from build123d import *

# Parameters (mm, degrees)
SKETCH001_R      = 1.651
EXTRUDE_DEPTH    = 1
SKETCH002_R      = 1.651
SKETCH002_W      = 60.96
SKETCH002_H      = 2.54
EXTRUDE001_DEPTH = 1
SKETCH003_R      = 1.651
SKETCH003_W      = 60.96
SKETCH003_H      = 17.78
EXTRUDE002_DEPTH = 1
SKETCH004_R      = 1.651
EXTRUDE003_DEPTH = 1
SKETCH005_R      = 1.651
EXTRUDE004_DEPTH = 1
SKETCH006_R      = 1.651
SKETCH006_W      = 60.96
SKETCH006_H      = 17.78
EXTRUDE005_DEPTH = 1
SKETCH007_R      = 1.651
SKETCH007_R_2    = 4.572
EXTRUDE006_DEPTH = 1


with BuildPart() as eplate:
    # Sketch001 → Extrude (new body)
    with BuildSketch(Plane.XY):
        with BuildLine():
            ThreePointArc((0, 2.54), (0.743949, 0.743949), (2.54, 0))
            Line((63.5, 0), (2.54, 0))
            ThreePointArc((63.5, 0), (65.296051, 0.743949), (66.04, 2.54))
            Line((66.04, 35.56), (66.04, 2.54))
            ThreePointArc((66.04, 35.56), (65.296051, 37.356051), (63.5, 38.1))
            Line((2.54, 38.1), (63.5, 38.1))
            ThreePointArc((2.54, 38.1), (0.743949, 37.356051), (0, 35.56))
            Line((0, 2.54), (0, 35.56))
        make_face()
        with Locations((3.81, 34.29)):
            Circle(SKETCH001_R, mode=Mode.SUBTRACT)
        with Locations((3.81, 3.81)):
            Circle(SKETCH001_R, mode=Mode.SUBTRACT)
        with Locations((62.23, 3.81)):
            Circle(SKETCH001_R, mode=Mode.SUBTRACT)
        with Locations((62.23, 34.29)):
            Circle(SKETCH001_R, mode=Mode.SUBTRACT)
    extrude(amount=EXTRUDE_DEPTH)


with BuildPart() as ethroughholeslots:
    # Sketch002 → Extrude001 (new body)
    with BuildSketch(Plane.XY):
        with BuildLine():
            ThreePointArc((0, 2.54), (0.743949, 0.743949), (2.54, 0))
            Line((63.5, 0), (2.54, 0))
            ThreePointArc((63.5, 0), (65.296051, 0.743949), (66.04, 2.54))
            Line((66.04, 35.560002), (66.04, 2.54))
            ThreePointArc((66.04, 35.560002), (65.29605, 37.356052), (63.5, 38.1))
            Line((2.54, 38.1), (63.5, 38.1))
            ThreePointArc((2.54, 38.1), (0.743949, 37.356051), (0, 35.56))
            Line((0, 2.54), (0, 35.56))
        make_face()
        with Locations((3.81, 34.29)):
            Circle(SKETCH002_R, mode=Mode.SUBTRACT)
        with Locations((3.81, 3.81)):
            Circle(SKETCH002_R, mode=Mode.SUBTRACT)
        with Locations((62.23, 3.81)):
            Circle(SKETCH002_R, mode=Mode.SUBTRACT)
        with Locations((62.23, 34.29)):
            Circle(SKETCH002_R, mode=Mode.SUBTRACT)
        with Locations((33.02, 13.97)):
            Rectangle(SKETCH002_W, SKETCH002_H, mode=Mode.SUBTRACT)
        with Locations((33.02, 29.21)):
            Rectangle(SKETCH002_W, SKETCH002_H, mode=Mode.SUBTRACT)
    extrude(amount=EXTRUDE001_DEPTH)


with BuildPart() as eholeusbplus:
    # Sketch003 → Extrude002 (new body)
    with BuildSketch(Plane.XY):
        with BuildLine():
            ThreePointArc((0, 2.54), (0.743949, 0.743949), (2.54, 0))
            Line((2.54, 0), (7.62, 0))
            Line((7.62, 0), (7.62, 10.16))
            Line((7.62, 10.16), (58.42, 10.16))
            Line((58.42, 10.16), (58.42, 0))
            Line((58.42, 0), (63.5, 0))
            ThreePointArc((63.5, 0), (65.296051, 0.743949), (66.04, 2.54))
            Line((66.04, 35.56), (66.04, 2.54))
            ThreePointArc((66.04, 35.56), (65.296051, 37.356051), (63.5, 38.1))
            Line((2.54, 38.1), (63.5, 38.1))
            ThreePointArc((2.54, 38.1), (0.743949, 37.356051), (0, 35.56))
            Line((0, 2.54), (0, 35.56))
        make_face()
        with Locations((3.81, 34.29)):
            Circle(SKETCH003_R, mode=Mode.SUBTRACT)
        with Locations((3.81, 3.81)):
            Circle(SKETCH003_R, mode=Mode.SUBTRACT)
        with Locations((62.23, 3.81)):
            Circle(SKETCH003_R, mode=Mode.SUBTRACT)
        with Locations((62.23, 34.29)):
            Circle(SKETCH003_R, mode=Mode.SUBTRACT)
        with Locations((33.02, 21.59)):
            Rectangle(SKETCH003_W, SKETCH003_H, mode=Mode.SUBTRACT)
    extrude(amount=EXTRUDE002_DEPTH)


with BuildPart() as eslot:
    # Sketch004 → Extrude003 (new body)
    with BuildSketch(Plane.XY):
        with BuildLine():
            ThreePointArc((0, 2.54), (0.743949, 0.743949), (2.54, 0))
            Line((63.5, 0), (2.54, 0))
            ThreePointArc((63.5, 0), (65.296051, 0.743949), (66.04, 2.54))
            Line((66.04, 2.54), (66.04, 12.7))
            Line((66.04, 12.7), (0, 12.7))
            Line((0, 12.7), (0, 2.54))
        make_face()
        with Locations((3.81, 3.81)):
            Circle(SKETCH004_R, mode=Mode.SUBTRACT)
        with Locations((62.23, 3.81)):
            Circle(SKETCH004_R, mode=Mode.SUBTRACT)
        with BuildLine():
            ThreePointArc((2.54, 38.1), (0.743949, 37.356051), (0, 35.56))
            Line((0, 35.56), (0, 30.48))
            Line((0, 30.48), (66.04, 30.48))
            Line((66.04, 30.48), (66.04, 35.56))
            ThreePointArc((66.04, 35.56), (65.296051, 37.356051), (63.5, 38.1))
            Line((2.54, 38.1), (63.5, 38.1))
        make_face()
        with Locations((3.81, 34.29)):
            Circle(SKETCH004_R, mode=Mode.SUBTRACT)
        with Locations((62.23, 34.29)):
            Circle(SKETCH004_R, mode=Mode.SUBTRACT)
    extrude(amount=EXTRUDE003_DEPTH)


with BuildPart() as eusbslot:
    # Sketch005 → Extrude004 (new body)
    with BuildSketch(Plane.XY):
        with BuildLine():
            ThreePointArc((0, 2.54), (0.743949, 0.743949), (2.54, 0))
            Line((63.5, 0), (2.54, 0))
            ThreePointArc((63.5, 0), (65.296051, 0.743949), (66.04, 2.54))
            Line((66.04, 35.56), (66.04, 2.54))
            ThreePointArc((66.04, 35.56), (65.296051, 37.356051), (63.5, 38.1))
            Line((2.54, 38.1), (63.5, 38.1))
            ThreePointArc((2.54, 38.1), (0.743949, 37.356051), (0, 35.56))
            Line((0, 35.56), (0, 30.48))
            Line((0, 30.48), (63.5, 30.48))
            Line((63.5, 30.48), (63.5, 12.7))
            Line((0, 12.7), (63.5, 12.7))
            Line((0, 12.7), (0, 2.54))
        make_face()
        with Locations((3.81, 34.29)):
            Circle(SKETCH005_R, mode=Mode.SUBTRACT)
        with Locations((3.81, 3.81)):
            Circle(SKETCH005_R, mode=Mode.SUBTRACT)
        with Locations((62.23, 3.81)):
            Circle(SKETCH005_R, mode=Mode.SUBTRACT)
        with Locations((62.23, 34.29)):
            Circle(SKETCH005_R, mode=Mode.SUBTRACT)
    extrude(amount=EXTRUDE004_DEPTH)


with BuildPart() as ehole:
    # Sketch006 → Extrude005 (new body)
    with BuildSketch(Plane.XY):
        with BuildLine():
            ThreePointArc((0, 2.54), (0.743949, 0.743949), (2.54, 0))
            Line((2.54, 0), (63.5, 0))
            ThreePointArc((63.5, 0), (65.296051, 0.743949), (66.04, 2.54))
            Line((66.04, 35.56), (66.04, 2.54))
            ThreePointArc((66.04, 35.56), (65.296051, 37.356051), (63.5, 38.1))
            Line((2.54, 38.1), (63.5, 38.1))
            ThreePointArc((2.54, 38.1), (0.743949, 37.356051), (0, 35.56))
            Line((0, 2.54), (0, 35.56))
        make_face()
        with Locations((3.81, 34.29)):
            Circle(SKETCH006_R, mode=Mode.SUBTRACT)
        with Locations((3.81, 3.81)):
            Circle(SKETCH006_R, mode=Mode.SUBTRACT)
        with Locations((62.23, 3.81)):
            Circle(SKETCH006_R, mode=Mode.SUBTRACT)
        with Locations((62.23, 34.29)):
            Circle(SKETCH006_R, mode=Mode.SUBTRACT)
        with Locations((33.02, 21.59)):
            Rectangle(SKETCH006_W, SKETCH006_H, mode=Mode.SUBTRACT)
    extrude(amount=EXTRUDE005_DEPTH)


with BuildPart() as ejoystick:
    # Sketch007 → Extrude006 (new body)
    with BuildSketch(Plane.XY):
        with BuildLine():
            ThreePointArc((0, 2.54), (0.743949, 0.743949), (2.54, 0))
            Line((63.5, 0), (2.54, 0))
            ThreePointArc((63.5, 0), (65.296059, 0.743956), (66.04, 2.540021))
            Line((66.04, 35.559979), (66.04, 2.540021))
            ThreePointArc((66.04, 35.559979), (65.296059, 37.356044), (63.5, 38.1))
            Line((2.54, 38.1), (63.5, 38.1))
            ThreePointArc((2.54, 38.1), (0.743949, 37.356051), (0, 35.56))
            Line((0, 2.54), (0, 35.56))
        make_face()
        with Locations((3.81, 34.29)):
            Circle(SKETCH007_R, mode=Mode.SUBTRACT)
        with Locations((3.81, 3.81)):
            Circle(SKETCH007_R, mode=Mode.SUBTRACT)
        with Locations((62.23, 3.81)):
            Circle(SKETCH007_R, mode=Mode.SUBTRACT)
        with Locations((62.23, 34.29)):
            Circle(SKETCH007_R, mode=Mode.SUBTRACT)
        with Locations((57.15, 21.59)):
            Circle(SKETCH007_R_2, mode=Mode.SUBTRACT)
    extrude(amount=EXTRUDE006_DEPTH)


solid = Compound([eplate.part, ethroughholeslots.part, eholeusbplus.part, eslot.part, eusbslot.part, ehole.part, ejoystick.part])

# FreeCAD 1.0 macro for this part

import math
import FreeCAD as App
import Part
import Sketcher
from FreeCAD import Vector
Q = App.Units.Quantity

doc = App.newDocument("Part")
body = doc.addObject("PartDesign::Body", "Body")

sketch1 = doc.addObject("Sketcher::SketchObject", "Sketch")
body.addObject(sketch1)
sketch1.AttachmentSupport = (doc.XY_Plane, [""])
sketch1.MapMode = "FlatFace"
sketch1.addGeometry([
    Part.ArcOfCircle(Part.Circle(Vector(2.540001, 2.540001, 0), Vector(0, 0, 1), 2.540001), math.radians(-179.999983), math.radians(-90.000017)),
    Part.LineSegment(Vector(2.54, 0, 0), Vector(63.5, 0, 0)),
    Part.ArcOfCircle(Part.Circle(Vector(63.499999, 2.540001, 0), Vector(0, 0, 1), 2.540001), math.radians(-89.999983), math.radians(-0.000017)),
    Part.LineSegment(Vector(66.04, 2.54, 0), Vector(66.04, 35.56, 0)),
    Part.ArcOfCircle(Part.Circle(Vector(63.499999, 35.559999, 0), Vector(0, 0, 1), 2.540001), math.radians(0.000017), math.radians(89.999983)),
    Part.LineSegment(Vector(63.5, 38.1, 0), Vector(2.54, 38.1, 0)),
    Part.ArcOfCircle(Part.Circle(Vector(2.540001, 35.559999, 0), Vector(0, 0, 1), 2.540001), math.radians(90.000017), math.radians(179.999983)),
    Part.LineSegment(Vector(0, 35.56, 0), Vector(0, 2.54, 0)),
    Part.Circle(Vector(3.81, 3.81, 0), Vector(0, 0, 1), 1.651),
    Part.Circle(Vector(62.23, 3.81, 0), Vector(0, 0, 1), 1.651),
    Part.Circle(Vector(3.81, 34.29, 0), Vector(0, 0, 1), 1.651),
    Part.Circle(Vector(62.23, 34.29, 0), Vector(0, 0, 1), 1.651),
], False)
sketch1.addConstraint([
    Sketcher.Constraint("Tangent", 0, 2, 1, 1),
    Sketcher.Constraint("Tangent", 1, 2, 2, 1),
    Sketcher.Constraint("Tangent", 2, 2, 3, 1),
    Sketcher.Constraint("Tangent", 3, 2, 4, 1),
    Sketcher.Constraint("Tangent", 4, 2, 5, 1),
    Sketcher.Constraint("Tangent", 5, 2, 6, 1),
    Sketcher.Constraint("Tangent", 6, 2, 7, 1),
    Sketcher.Constraint("Tangent", 7, 2, 0, 1),
    Sketcher.Constraint("Horizontal", 1),
    Sketcher.Constraint("Vertical", 3),
    Sketcher.Constraint("Horizontal", 5),
    Sketcher.Constraint("Vertical", 7),
    Sketcher.Constraint("Equal", 0, 2),
    Sketcher.Constraint("Equal", 2, 4),
    Sketcher.Constraint("Equal", 4, 6),
    Sketcher.Constraint("Equal", 8, 9),
    Sketcher.Constraint("Equal", 9, 10),
    Sketcher.Constraint("Equal", 10, 11),
    Sketcher.Constraint("PointOnObject", 0, 2, -1),
    Sketcher.Constraint("PointOnObject", 6, 2, -2),
    Sketcher.Constraint("Horizontal", 8, 3, 9, 3),
    Sketcher.Constraint("Horizontal", 10, 3, 11, 3),
    Sketcher.Constraint("Vertical", 8, 3, 10, 3),
    Sketcher.Constraint("Vertical", 9, 3, 11, 3),
    Sketcher.Constraint("Radius", 0, Q("0.1 in")),
    Sketcher.Constraint("Diameter", 8, Q("0.13 in")),
    Sketcher.Constraint("DistanceX", 1, 1, 1, 2, Q("2.4 in")),
    Sketcher.Constraint("DistanceY", 3, 1, 3, 2, Q("1.3 in")),
    Sketcher.Constraint("DistanceX", 8, 3, 9, 3, Q("2.3 in")),
    Sketcher.Constraint("DistanceY", 8, 3, 10, 3, Q("1.2 in")),
    Sketcher.Constraint("DistanceX", -1, 1, 8, 3, Q("0.15 in")),
    Sketcher.Constraint("DistanceY", -1, 1, 8, 3, Q("0.15 in")),
])
pad1 = doc.addObject("PartDesign::Pad", "Pad")
body.addObject(pad1)
pad1.Profile = sketch1
pad1.Length = 1
body2 = doc.addObject("PartDesign::Body", "Body001")

sketch2 = doc.addObject("Sketcher::SketchObject", "Sketch001")
body2.addObject(sketch2)
sketch2.AttachmentSupport = (doc.getObject("XY_Plane001"), [""])
sketch2.MapMode = "FlatFace"
sketch2.addGeometry([
    Part.ArcOfCircle(Part.Circle(Vector(2.540001, 2.540001, 0), Vector(0, 0, 1), 2.540001), math.radians(-179.999983), math.radians(-90.000017)),
    Part.LineSegment(Vector(2.54, 0, 0), Vector(63.5, 0, 0)),
    Part.ArcOfCircle(Part.Circle(Vector(63.499999, 2.540001, 0), Vector(0, 0, 1), 2.540001), math.radians(-89.999983), math.radians(-0.000017)),
    Part.LineSegment(Vector(66.04, 2.54, 0), Vector(66.04, 35.560002, 0)),
    Part.ArcOfCircle(Part.Circle(Vector(63.499999, 35.559999, 0), Vector(0, 0, 1), 2.540001), math.radians(0.000062), math.radians(89.999983)),
    Part.LineSegment(Vector(63.5, 38.1, 0), Vector(2.54, 38.1, 0)),
    Part.ArcOfCircle(Part.Circle(Vector(2.540001, 35.559999, 0), Vector(0, 0, 1), 2.540001), math.radians(90.000017), math.radians(179.999983)),
    Part.LineSegment(Vector(0, 35.56, 0), Vector(0, 2.54, 0)),
    Part.Circle(Vector(3.81, 3.81, 0), Vector(0, 0, 1), 1.651),
    Part.Circle(Vector(62.23, 3.81, 0), Vector(0, 0, 1), 1.651),
    Part.LineSegment(Vector(63.5, 12.7, 0), Vector(2.54, 12.7, 0)),
    Part.LineSegment(Vector(2.54, 12.7, 0), Vector(2.54, 15.24, 0)),
    Part.LineSegment(Vector(2.54, 15.24, 0), Vector(63.5, 15.24, 0)),
    Part.LineSegment(Vector(63.5, 15.24, 0), Vector(63.5, 12.7, 0)),
    Part.Circle(Vector(3.81, 34.29, 0), Vector(0, 0, 1), 1.651),
    Part.LineSegment(Vector(63.5, 27.94, 0), Vector(2.54, 27.94, 0)),
    Part.LineSegment(Vector(2.54, 27.94, 0), Vector(2.54, 30.48, 0)),
    Part.LineSegment(Vector(2.54, 30.48, 0), Vector(63.5, 30.48, 0)),
    Part.LineSegment(Vector(63.5, 30.48, 0), Vector(63.5, 27.94, 0)),
    Part.Circle(Vector(62.23, 34.29, 0), Vector(0, 0, 1), 1.651),
], False)
sketch2.addConstraint([
    Sketcher.Constraint("Tangent", 0, 2, 1, 1),
    Sketcher.Constraint("Tangent", 1, 2, 2, 1),
    Sketcher.Constraint("Tangent", 2, 2, 3, 1),
    Sketcher.Constraint("Tangent", 3, 2, 4, 1),
    Sketcher.Constraint("Tangent", 4, 2, 5, 1),
    Sketcher.Constraint("Tangent", 5, 2, 6, 1),
    Sketcher.Constraint("Tangent", 6, 2, 7, 1),
    Sketcher.Constraint("Tangent", 7, 2, 0, 1),
    Sketcher.Constraint("Coincident", 10, 2, 11, 1),
    Sketcher.Constraint("Coincident", 11, 2, 12, 1),
    Sketcher.Constraint("Coincident", 12, 2, 13, 1),
    Sketcher.Constraint("Coincident", 13, 2, 10, 1),
    Sketcher.Constraint("Coincident", 15, 2, 16, 1),
    Sketcher.Constraint("Coincident", 16, 2, 17, 1),
    Sketcher.Constraint("Coincident", 17, 2, 18, 1),
    Sketcher.Constraint("Coincident", 18, 2, 15, 1),
    Sketcher.Constraint("Horizontal", 1),
    Sketcher.Constraint("Vertical", 3),
    Sketcher.Constraint("Horizontal", 5),
    Sketcher.Constraint("Vertical", 7),
    Sketcher.Constraint("Horizontal", 10),
    Sketcher.Constraint("Vertical", 11),
    Sketcher.Constraint("Horizontal", 12),
    Sketcher.Constraint("Vertical", 13),
    Sketcher.Constraint("Horizontal", 15),
    Sketcher.Constraint("Vertical", 16),
    Sketcher.Constraint("Horizontal", 17),
    Sketcher.Constraint("Vertical", 18),
    Sketcher.Constraint("Equal", 0, 2),
    Sketcher.Constraint("Equal", 2, 4),
    Sketcher.Constraint("Equal", 4, 6),
    Sketcher.Constraint("Equal", 8, 9),
    Sketcher.Constraint("Equal", 9, 14),
    Sketcher.Constraint("Equal", 14, 19),
    Sketcher.Constraint("PointOnObject", 0, 2, -1),
    Sketcher.Constraint("PointOnObject", 6, 2, -2),
    Sketcher.Constraint("Horizontal", 8, 3, 9, 3),
    Sketcher.Constraint("Horizontal", 14, 3, 19, 3),
    Sketcher.Constraint("Vertical", 8, 3, 14, 3),
    Sketcher.Constraint("Vertical", 9, 3, 19, 3),
    Sketcher.Constraint("Vertical", 5, 2, 10, 2),
    Sketcher.Constraint("Vertical", 4, 2, 12, 2),
    Sketcher.Constraint("Vertical", 11, 2, 15, 2),
    Sketcher.Constraint("Vertical", 13, 2, 17, 2),
    Sketcher.Constraint("Equal", 13, 16),
    Sketcher.Constraint("Radius", 0, Q("0.1 in")),
    Sketcher.Constraint("Diameter", 8, Q("0.13 in")),
    Sketcher.Constraint("DistanceX", 1, 1, 1, 2, Q("2.4 in")),
    Sketcher.Constraint("DistanceY", 3, 1, 3, 2, Q("1.3000001 in")),
    Sketcher.Constraint("DistanceY", 11, 1, 11, 2, Q("0.1 in")),
    Sketcher.Constraint("DistanceY", -1, 1, 10, 2, Q("0.5 in")),
    Sketcher.Constraint("DistanceY", -1, 1, 15, 2, Q("1.1 in")),
    Sketcher.Constraint("DistanceX", 8, 3, 9, 3, Q("2.3 in")),
    Sketcher.Constraint("DistanceY", 8, 3, 14, 3, Q("1.2 in")),
    Sketcher.Constraint("DistanceX", -1, 1, 8, 3, Q("0.15 in")),
    Sketcher.Constraint("DistanceY", -1, 1, 8, 3, Q("0.15 in")),
])
pad2 = doc.addObject("PartDesign::Pad", "Pad001")
body2.addObject(pad2)
pad2.Profile = sketch2
pad2.Length = 1
body3 = doc.addObject("PartDesign::Body", "Body002")

sketch3 = doc.addObject("Sketcher::SketchObject", "Sketch002")
body3.addObject(sketch3)
sketch3.AttachmentSupport = (doc.getObject("XY_Plane002"), [""])
sketch3.MapMode = "FlatFace"
sketch3.addGeometry([
    Part.ArcOfCircle(Part.Circle(Vector(2.540001, 2.540001, 0), Vector(0, 0, 1), 2.540001), math.radians(-179.999983), math.radians(-90.000017)),
    Part.LineSegment(Vector(2.54, 0, 0), Vector(7.62, 0, 0)),
    Part.LineSegment(Vector(7.62, 0, 0), Vector(7.62, 10.16, 0)),
    Part.LineSegment(Vector(7.62, 10.16, 0), Vector(58.42, 10.16, 0)),
    Part.LineSegment(Vector(58.42, 10.16, 0), Vector(58.42, 0, 0)),
    Part.LineSegment(Vector(58.42, 0, 0), Vector(63.5, 0, 0)),
    Part.ArcOfCircle(Part.Circle(Vector(63.499999, 2.540001, 0), Vector(0, 0, 1), 2.540001), math.radians(-89.999983), math.radians(-0.000017)),
    Part.LineSegment(Vector(66.04, 2.54, 0), Vector(66.04, 35.56, 0)),
    Part.ArcOfCircle(Part.Circle(Vector(63.499999, 35.559999, 0), Vector(0, 0, 1), 2.540001), math.radians(0.000017), math.radians(89.999983)),
    Part.LineSegment(Vector(63.5, 38.1, 0), Vector(2.54, 38.1, 0)),
    Part.ArcOfCircle(Part.Circle(Vector(2.540001, 35.559999, 0), Vector(0, 0, 1), 2.540001), math.radians(90.000017), math.radians(179.999983)),
    Part.LineSegment(Vector(0, 35.56, 0), Vector(0, 2.54, 0)),
    Part.Circle(Vector(3.81, 3.81, 0), Vector(0, 0, 1), 1.651),
    Part.Circle(Vector(62.23, 3.81, 0), Vector(0, 0, 1), 1.651),
    Part.Circle(Vector(3.81, 34.29, 0), Vector(0, 0, 1), 1.651),
    Part.LineSegment(Vector(63.5, 12.7, 0), Vector(2.54, 12.7, 0)),
    Part.LineSegment(Vector(2.54, 12.7, 0), Vector(2.54, 30.48, 0)),
    Part.LineSegment(Vector(2.54, 30.48, 0), Vector(63.5, 30.48, 0)),
    Part.LineSegment(Vector(63.5, 30.48, 0), Vector(63.5, 12.7, 0)),
    Part.Circle(Vector(62.23, 34.29, 0), Vector(0, 0, 1), 1.651),
], False)
sketch3.addConstraint([
    Sketcher.Constraint("Tangent", 0, 2, 1, 1),
    Sketcher.Constraint("Coincident", 1, 2, 2, 1),
    Sketcher.Constraint("Coincident", 2, 2, 3, 1),
    Sketcher.Constraint("Coincident", 3, 2, 4, 1),
    Sketcher.Constraint("Coincident", 4, 2, 5, 1),
    Sketcher.Constraint("Tangent", 5, 2, 6, 1),
    Sketcher.Constraint("Tangent", 6, 2, 7, 1),
    Sketcher.Constraint("Tangent", 7, 2, 8, 1),
    Sketcher.Constraint("Tangent", 8, 2, 9, 1),
    Sketcher.Constraint("Tangent", 9, 2, 10, 1),
    Sketcher.Constraint("Tangent", 10, 2, 11, 1),
    Sketcher.Constraint("Tangent", 11, 2, 0, 1),
    Sketcher.Constraint("Coincident", 15, 2, 16, 1),
    Sketcher.Constraint("Coincident", 16, 2, 17, 1),
    Sketcher.Constraint("Coincident", 17, 2, 18, 1),
    Sketcher.Constraint("Coincident", 18, 2, 15, 1),
    Sketcher.Constraint("Horizontal", 1),
    Sketcher.Constraint("Vertical", 2),
    Sketcher.Constraint("Horizontal", 3),
    Sketcher.Constraint("Vertical", 4),
    Sketcher.Constraint("Horizontal", 5),
    Sketcher.Constraint("Vertical", 7),
    Sketcher.Constraint("Horizontal", 9),
    Sketcher.Constraint("Vertical", 11),
    Sketcher.Constraint("Horizontal", 15),
    Sketcher.Constraint("Vertical", 16),
    Sketcher.Constraint("Horizontal", 17),
    Sketcher.Constraint("Vertical", 18),
    Sketcher.Constraint("Equal", 0, 6),
    Sketcher.Constraint("Equal", 6, 8),
    Sketcher.Constraint("Equal", 8, 10),
    Sketcher.Constraint("Equal", 12, 13),
    Sketcher.Constraint("Equal", 13, 14),
    Sketcher.Constraint("Equal", 14, 19),
    Sketcher.Constraint("PointOnObject", 0, 2, -1),
    Sketcher.Constraint("PointOnObject", 4, 2, -1),
    Sketcher.Constraint("PointOnObject", 10, 2, -2),
    Sketcher.Constraint("Horizontal", 12, 3, 13, 3),
    Sketcher.Constraint("Horizontal", 14, 3, 19, 3),
    Sketcher.Constraint("Vertical", 12, 3, 14, 3),
    Sketcher.Constraint("Vertical", 13, 3, 19, 3),
    Sketcher.Constraint("Vertical", 9, 2, 15, 2),
    Sketcher.Constraint("Vertical", 8, 2, 17, 2),
    Sketcher.Constraint("Equal", 1, 5),
    Sketcher.Constraint("Radius", 0, Q("0.1 in")),
    Sketcher.Constraint("Diameter", 12, Q("0.13 in")),
    Sketcher.Constraint("DistanceX", 3, 1, 3, 2, Q("2 in")),
    Sketcher.Constraint("DistanceX", 1, 1, 1, 2, Q("0.2 in")),
    Sketcher.Constraint("DistanceY", 2, 1, 2, 2, Q("0.4 in")),
    Sketcher.Constraint("DistanceY", 7, 1, 7, 2, Q("1.3 in")),
    Sketcher.Constraint("DistanceY", 16, 1, 16, 2, Q("0.7 in")),
    Sketcher.Constraint("DistanceY", -1, 1, 15, 2, Q("0.5 in")),
    Sketcher.Constraint("DistanceX", 12, 3, 13, 3, Q("2.3 in")),
    Sketcher.Constraint("DistanceY", 12, 3, 14, 3, Q("1.2 in")),
    Sketcher.Constraint("DistanceX", -1, 1, 12, 3, Q("0.15 in")),
    Sketcher.Constraint("DistanceY", -1, 1, 12, 3, Q("0.15 in")),
])
pad3 = doc.addObject("PartDesign::Pad", "Pad002")
body3.addObject(pad3)
pad3.Profile = sketch3
pad3.Length = 1
body4 = doc.addObject("PartDesign::Body", "Body003")
body4.AllowCompound = True

sketch4 = doc.addObject("Sketcher::SketchObject", "Sketch003")
body4.addObject(sketch4)
sketch4.AttachmentSupport = (doc.getObject("XY_Plane003"), [""])
sketch4.MapMode = "FlatFace"
sketch4.addGeometry([
    Part.ArcOfCircle(Part.Circle(Vector(2.540001, 2.540001, 0), Vector(0, 0, 1), 2.540001), math.radians(-179.999983), math.radians(-90.000017)),
    Part.LineSegment(Vector(2.54, 0, 0), Vector(63.5, 0, 0)),
    Part.ArcOfCircle(Part.Circle(Vector(63.499999, 2.540001, 0), Vector(0, 0, 1), 2.540001), math.radians(-89.999983), math.radians(-0.000017)),
    Part.LineSegment(Vector(66.04, 2.54, 0), Vector(66.04, 12.7, 0)),
    Part.LineSegment(Vector(66.04, 12.7, 0), Vector(0, 12.7, 0)),
    Part.LineSegment(Vector(0, 12.7, 0), Vector(0, 2.54, 0)),
    Part.Circle(Vector(3.81, 3.81, 0), Vector(0, 0, 1), 1.651),
    Part.Circle(Vector(62.23, 3.81, 0), Vector(0, 0, 1), 1.651),
    Part.ArcOfCircle(Part.Circle(Vector(2.540001, 35.559999, 0), Vector(0, 0, 1), 2.540001), math.radians(90.000017), math.radians(179.999983)),
    Part.LineSegment(Vector(0, 35.56, 0), Vector(0, 30.48, 0)),
    Part.LineSegment(Vector(0, 30.48, 0), Vector(66.04, 30.48, 0)),
    Part.LineSegment(Vector(66.04, 30.48, 0), Vector(66.04, 35.56, 0)),
    Part.ArcOfCircle(Part.Circle(Vector(63.499999, 35.559999, 0), Vector(0, 0, 1), 2.540001), math.radians(0.000017), math.radians(89.999983)),
    Part.LineSegment(Vector(63.5, 38.1, 0), Vector(2.54, 38.1, 0)),
    Part.Circle(Vector(3.81, 34.29, 0), Vector(0, 0, 1), 1.651),
    Part.Circle(Vector(62.23, 34.29, 0), Vector(0, 0, 1), 1.651),
], False)
sketch4.addConstraint([
    Sketcher.Constraint("Tangent", 0, 2, 1, 1),
    Sketcher.Constraint("Tangent", 1, 2, 2, 1),
    Sketcher.Constraint("Tangent", 2, 2, 3, 1),
    Sketcher.Constraint("Coincident", 3, 2, 4, 1),
    Sketcher.Constraint("Coincident", 4, 2, 5, 1),
    Sketcher.Constraint("Tangent", 5, 2, 0, 1),
    Sketcher.Constraint("Tangent", 8, 2, 9, 1),
    Sketcher.Constraint("Coincident", 9, 2, 10, 1),
    Sketcher.Constraint("Coincident", 10, 2, 11, 1),
    Sketcher.Constraint("Tangent", 11, 2, 12, 1),
    Sketcher.Constraint("Tangent", 12, 2, 13, 1),
    Sketcher.Constraint("Tangent", 13, 2, 8, 1),
    Sketcher.Constraint("Horizontal", 1),
    Sketcher.Constraint("Vertical", 3),
    Sketcher.Constraint("Horizontal", 4),
    Sketcher.Constraint("Vertical", 5),
    Sketcher.Constraint("Vertical", 9),
    Sketcher.Constraint("Horizontal", 10),
    Sketcher.Constraint("Vertical", 11),
    Sketcher.Constraint("Horizontal", 13),
    Sketcher.Constraint("Equal", 0, 2),
    Sketcher.Constraint("Equal", 6, 7),
    Sketcher.Constraint("Equal", 2, 8),
    Sketcher.Constraint("Equal", 8, 12),
    Sketcher.Constraint("Equal", 7, 14),
    Sketcher.Constraint("Equal", 14, 15),
    Sketcher.Constraint("PointOnObject", 0, 2, -1),
    Sketcher.Constraint("PointOnObject", 4, 2, -2),
    Sketcher.Constraint("PointOnObject", 8, 2, -2),
    Sketcher.Constraint("Horizontal", 6, 3, 7, 3),
    Sketcher.Constraint("Horizontal", 14, 3, 15, 3),
    Sketcher.Constraint("Vertical", 2, 3, 12, 3),
    Sketcher.Constraint("Vertical", 6, 3, 14, 3),
    Sketcher.Constraint("Vertical", 7, 3, 15, 3),
    Sketcher.Constraint("Radius", 0, Q("0.1 in")),
    Sketcher.Constraint("Diameter", 6, Q("0.13 in")),
    Sketcher.Constraint("DistanceX", 1, 1, 1, 2, Q("2.4 in")),
    Sketcher.Constraint("DistanceY", 3, 1, 3, 2, Q("0.4 in")),
    Sketcher.Constraint("DistanceY", 9, 2, 9, 1, Q("0.2 in")),
    Sketcher.Constraint("DistanceY", 3, 2, 12, 2, Q("1 in")),
    Sketcher.Constraint("DistanceX", 6, 3, 7, 3, Q("2.3 in")),
    Sketcher.Constraint("DistanceY", 6, 3, 14, 3, Q("1.2 in")),
    Sketcher.Constraint("DistanceX", -1, 1, 6, 3, Q("0.15 in")),
    Sketcher.Constraint("DistanceY", -1, 1, 6, 3, Q("0.15 in")),
])
pad4 = doc.addObject("PartDesign::Pad", "Pad003")
body4.addObject(pad4)
pad4.Profile = sketch4
pad4.Length = 1
body5 = doc.addObject("PartDesign::Body", "Body004")

sketch5 = doc.addObject("Sketcher::SketchObject", "Sketch004")
body5.addObject(sketch5)
sketch5.AttachmentSupport = (doc.getObject("XY_Plane004"), [""])
sketch5.MapMode = "FlatFace"
sketch5.addGeometry([
    Part.ArcOfCircle(Part.Circle(Vector(2.540001, 2.540001, 0), Vector(0, 0, 1), 2.540001), math.radians(-179.999983), math.radians(-90.000017)),
    Part.LineSegment(Vector(2.54, 0, 0), Vector(63.5, 0, 0)),
    Part.ArcOfCircle(Part.Circle(Vector(63.499999, 2.540001, 0), Vector(0, 0, 1), 2.540001), math.radians(-89.999983), math.radians(-0.000017)),
    Part.LineSegment(Vector(66.04, 2.54, 0), Vector(66.04, 35.56, 0)),
    Part.ArcOfCircle(Part.Circle(Vector(63.499999, 35.559999, 0), Vector(0, 0, 1), 2.540001), math.radians(0.000017), math.radians(89.999983)),
    Part.LineSegment(Vector(63.5, 38.1, 0), Vector(2.54, 38.1, 0)),
    Part.ArcOfCircle(Part.Circle(Vector(2.540001, 35.559999, 0), Vector(0, 0, 1), 2.540001), math.radians(90.000017), math.radians(179.999983)),
    Part.LineSegment(Vector(0, 35.56, 0), Vector(0, 30.48, 0)),
    Part.LineSegment(Vector(0, 30.48, 0), Vector(63.5, 30.48, 0)),
    Part.LineSegment(Vector(63.5, 30.48, 0), Vector(63.5, 12.7, 0)),
    Part.LineSegment(Vector(63.5, 12.7, 0), Vector(0, 12.7, 0)),
    Part.LineSegment(Vector(0, 12.7, 0), Vector(0, 2.54, 0)),
    Part.Circle(Vector(3.81, 3.81, 0), Vector(0, 0, 1), 1.651),
    Part.Circle(Vector(62.23, 3.81, 0), Vector(0, 0, 1), 1.651),
    Part.Circle(Vector(3.81, 34.29, 0), Vector(0, 0, 1), 1.651),
    Part.Circle(Vector(62.23, 34.29, 0), Vector(0, 0, 1), 1.651),
], False)
sketch5.addConstraint([
    Sketcher.Constraint("Tangent", 0, 2, 1, 1),
    Sketcher.Constraint("Tangent", 1, 2, 2, 1),
    Sketcher.Constraint("Tangent", 2, 2, 3, 1),
    Sketcher.Constraint("Tangent", 3, 2, 4, 1),
    Sketcher.Constraint("Tangent", 4, 2, 5, 1),
    Sketcher.Constraint("Tangent", 5, 2, 6, 1),
    Sketcher.Constraint("Tangent", 6, 2, 7, 1),
    Sketcher.Constraint("Coincident", 7, 2, 8, 1),
    Sketcher.Constraint("Coincident", 8, 2, 9, 1),
    Sketcher.Constraint("Coincident", 9, 2, 10, 1),
    Sketcher.Constraint("Coincident", 10, 2, 11, 1),
    Sketcher.Constraint("Tangent", 11, 2, 0, 1),
    Sketcher.Constraint("Horizontal", 1),
    Sketcher.Constraint("Vertical", 3),
    Sketcher.Constraint("Horizontal", 5),
    Sketcher.Constraint("Vertical", 7),
    Sketcher.Constraint("Horizontal", 8),
    Sketcher.Constraint("Vertical", 9),
    Sketcher.Constraint("Horizontal", 10),
    Sketcher.Constraint("Vertical", 11),
    Sketcher.Constraint("Equal", 0, 2),
    Sketcher.Constraint("Equal", 2, 4),
    Sketcher.Constraint("Equal", 4, 6),
    Sketcher.Constraint("Equal", 12, 13),
    Sketcher.Constraint("Equal", 13, 14),
    Sketcher.Constraint("Equal", 14, 15),
    Sketcher.Constraint("PointOnObject", 0, 2, -1),
    Sketcher.Constraint("PointOnObject", 6, 2, -2),
    Sketcher.Constraint("PointOnObject", 10, 2, -2),
    Sketcher.Constraint("Horizontal", 12, 3, 13, 3),
    Sketcher.Constraint("Horizontal", 14, 3, 15, 3),
    Sketcher.Constraint("Vertical", 12, 3, 14, 3),
    Sketcher.Constraint("Vertical", 13, 3, 15, 3),
    Sketcher.Constraint("Vertical", 4, 2, 8, 2),
    Sketcher.Constraint("Radius", 0, Q("0.1 in")),
    Sketcher.Constraint("Diameter", 12, Q("0.13 in")),
    Sketcher.Constraint("DistanceX", 1, 1, 1, 2, Q("2.4 in")),
    Sketcher.Constraint("DistanceY", 3, 1, 3, 2, Q("1.3 in")),
    Sketcher.Constraint("DistanceY", 7, 2, 7, 1, Q("0.2 in")),
    Sketcher.Constraint("DistanceY", 9, 2, 9, 1, Q("0.7 in")),
    Sketcher.Constraint("DistanceX", 12, 3, 13, 3, Q("2.3 in")),
    Sketcher.Constraint("DistanceY", 12, 3, 14, 3, Q("1.2 in")),
    Sketcher.Constraint("DistanceX", -1, 1, 12, 3, Q("0.15 in")),
    Sketcher.Constraint("DistanceY", -1, 1, 12, 3, Q("0.15 in")),
])
pad5 = doc.addObject("PartDesign::Pad", "Pad004")
body5.addObject(pad5)
pad5.Profile = sketch5
pad5.Length = 1
body6 = doc.addObject("PartDesign::Body", "Body005")

sketch6 = doc.addObject("Sketcher::SketchObject", "Sketch005")
body6.addObject(sketch6)
sketch6.AttachmentSupport = (doc.getObject("XY_Plane005"), [""])
sketch6.MapMode = "FlatFace"
sketch6.addGeometry([
    Part.ArcOfCircle(Part.Circle(Vector(2.540001, 2.540001, 0), Vector(0, 0, 1), 2.540001), math.radians(-179.999983), math.radians(-90.000017)),
    Part.LineSegment(Vector(2.54, 0, 0), Vector(63.5, 0, 0)),
    Part.ArcOfCircle(Part.Circle(Vector(63.499999, 2.540001, 0), Vector(0, 0, 1), 2.540001), math.radians(-89.999983), math.radians(-0.000017)),
    Part.LineSegment(Vector(66.04, 2.54, 0), Vector(66.04, 35.56, 0)),
    Part.ArcOfCircle(Part.Circle(Vector(63.499999, 35.559999, 0), Vector(0, 0, 1), 2.540001), math.radians(0.000017), math.radians(89.999983)),
    Part.LineSegment(Vector(63.5, 38.1, 0), Vector(2.54, 38.1, 0)),
    Part.ArcOfCircle(Part.Circle(Vector(2.540001, 35.559999, 0), Vector(0, 0, 1), 2.540001), math.radians(90.000017), math.radians(179.999983)),
    Part.LineSegment(Vector(0, 35.56, 0), Vector(0, 2.54, 0)),
    Part.Circle(Vector(3.81, 3.81, 0), Vector(0, 0, 1), 1.651),
    Part.Circle(Vector(62.23, 3.81, 0), Vector(0, 0, 1), 1.651),
    Part.Circle(Vector(3.81, 34.29, 0), Vector(0, 0, 1), 1.651),
    Part.LineSegment(Vector(63.5, 12.7, 0), Vector(2.54, 12.7, 0)),
    Part.LineSegment(Vector(2.54, 12.7, 0), Vector(2.54, 30.48, 0)),
    Part.LineSegment(Vector(2.54, 30.48, 0), Vector(63.5, 30.48, 0)),
    Part.LineSegment(Vector(63.5, 30.48, 0), Vector(63.5, 12.7, 0)),
    Part.Circle(Vector(62.23, 34.29, 0), Vector(0, 0, 1), 1.651),
], False)
sketch6.addConstraint([
    Sketcher.Constraint("Tangent", 0, 2, 1, 1),
    Sketcher.Constraint("Tangent", 1, 2, 2, 1),
    Sketcher.Constraint("Tangent", 2, 2, 3, 1),
    Sketcher.Constraint("Tangent", 3, 2, 4, 1),
    Sketcher.Constraint("Tangent", 4, 2, 5, 1),
    Sketcher.Constraint("Tangent", 5, 2, 6, 1),
    Sketcher.Constraint("Tangent", 6, 2, 7, 1),
    Sketcher.Constraint("Tangent", 7, 2, 0, 1),
    Sketcher.Constraint("Coincident", 11, 2, 12, 1),
    Sketcher.Constraint("Coincident", 12, 2, 13, 1),
    Sketcher.Constraint("Coincident", 13, 2, 14, 1),
    Sketcher.Constraint("Coincident", 14, 2, 11, 1),
    Sketcher.Constraint("Horizontal", 1),
    Sketcher.Constraint("Vertical", 3),
    Sketcher.Constraint("Horizontal", 5),
    Sketcher.Constraint("Vertical", 7),
    Sketcher.Constraint("Horizontal", 11),
    Sketcher.Constraint("Vertical", 12),
    Sketcher.Constraint("Horizontal", 13),
    Sketcher.Constraint("Vertical", 14),
    Sketcher.Constraint("Equal", 0, 2),
    Sketcher.Constraint("Equal", 2, 4),
    Sketcher.Constraint("Equal", 4, 6),
    Sketcher.Constraint("Equal", 8, 9),
    Sketcher.Constraint("Equal", 9, 10),
    Sketcher.Constraint("Equal", 10, 15),
    Sketcher.Constraint("PointOnObject", 0, 2, -1),
    Sketcher.Constraint("PointOnObject", 6, 2, -2),
    Sketcher.Constraint("Horizontal", 8, 3, 9, 3),
    Sketcher.Constraint("Horizontal", 10, 3, 15, 3),
    Sketcher.Constraint("Vertical", 8, 3, 10, 3),
    Sketcher.Constraint("Vertical", 9, 3, 15, 3),
    Sketcher.Constraint("Vertical", 5, 2, 11, 2),
    Sketcher.Constraint("Vertical", 4, 2, 13, 2),
    Sketcher.Constraint("Radius", 0, Q("0.1 in")),
    Sketcher.Constraint("Diameter", 8, Q("0.13 in")),
    Sketcher.Constraint("DistanceX", 1, 1, 1, 2, Q("2.4 in")),
    Sketcher.Constraint("DistanceY", 3, 1, 3, 2, Q("1.3 in")),
    Sketcher.Constraint("DistanceY", 12, 1, 12, 2, Q("0.7 in")),
    Sketcher.Constraint("DistanceY", -1, 1, 11, 2, Q("0.5 in")),
    Sketcher.Constraint("DistanceX", 8, 3, 9, 3, Q("2.3 in")),
    Sketcher.Constraint("DistanceY", 8, 3, 10, 3, Q("1.2 in")),
    Sketcher.Constraint("DistanceX", -1, 1, 8, 3, Q("0.15 in")),
    Sketcher.Constraint("DistanceY", -1, 1, 8, 3, Q("0.15 in")),
])
pad6 = doc.addObject("PartDesign::Pad", "Pad005")
body6.addObject(pad6)
pad6.Profile = sketch6
pad6.Length = 1
body7 = doc.addObject("PartDesign::Body", "Body006")

sketch7 = doc.addObject("Sketcher::SketchObject", "Sketch006")
body7.addObject(sketch7)
sketch7.AttachmentSupport = (doc.getObject("XY_Plane006"), [""])
sketch7.MapMode = "FlatFace"
sketch7.addGeometry([
    Part.ArcOfCircle(Part.Circle(Vector(2.540001, 2.540001, 0), Vector(0, 0, 1), 2.540001), math.radians(-179.999983), math.radians(-90.000017)),
    Part.LineSegment(Vector(2.54, 0, 0), Vector(63.5, 0, 0)),
    Part.ArcOfCircle(Part.Circle(Vector(63.500001, 2.539999, 0), Vector(0, 0, 1), 2.539999), math.radians(-90.000021), math.radians(0.000495)),
    Part.LineSegment(Vector(66.04, 2.540021, 0), Vector(66.04, 35.559979, 0)),
    Part.ArcOfCircle(Part.Circle(Vector(63.500001, 35.560001, 0), Vector(0, 0, 1), 2.539999), math.radians(-0.000495), math.radians(90.000021)),
    Part.LineSegment(Vector(63.5, 38.1, 0), Vector(2.54, 38.1, 0)),
    Part.ArcOfCircle(Part.Circle(Vector(2.540001, 35.559999, 0), Vector(0, 0, 1), 2.540001), math.radians(90.000017), math.radians(179.999983)),
    Part.LineSegment(Vector(0, 35.56, 0), Vector(0, 2.54, 0)),
    Part.Circle(Vector(3.81, 3.81, 0), Vector(0, 0, 1), 1.651),
    Part.Circle(Vector(62.23, 3.81, 0), Vector(0, 0, 1), 1.651),
    Part.Circle(Vector(3.81, 34.29, 0), Vector(0, 0, 1), 1.651),
    Part.Circle(Vector(57.15, 21.59, 0), Vector(0, 0, 1), 4.572),
    Part.Circle(Vector(62.23, 34.29, 0), Vector(0, 0, 1), 1.651),
], False)
sketch7.addConstraint([
    Sketcher.Constraint("Tangent", 0, 2, 1, 1),
    Sketcher.Constraint("Tangent", 1, 2, 2, 1),
    Sketcher.Constraint("Coincident", 2, 2, 3, 1),
    Sketcher.Constraint("Coincident", 3, 2, 4, 1),
    Sketcher.Constraint("Tangent", 4, 2, 5, 1),
    Sketcher.Constraint("Tangent", 5, 2, 6, 1),
    Sketcher.Constraint("Tangent", 6, 2, 7, 1),
    Sketcher.Constraint("Tangent", 7, 2, 0, 1),
    Sketcher.Constraint("Horizontal", 1),
    Sketcher.Constraint("Vertical", 3),
    Sketcher.Constraint("Horizontal", 5),
    Sketcher.Constraint("Vertical", 7),
    Sketcher.Constraint("Equal", 0, 2),
    Sketcher.Constraint("Equal", 2, 4),
    Sketcher.Constraint("Equal", 4, 6),
    Sketcher.Constraint("Equal", 8, 9),
    Sketcher.Constraint("Equal", 9, 10),
    Sketcher.Constraint("Equal", 10, 12),
    Sketcher.Constraint("PointOnObject", 0, 2, -1),
    Sketcher.Constraint("PointOnObject", 6, 2, -2),
    Sketcher.Constraint("Horizontal", 8, 3, 9, 3),
    Sketcher.Constraint("Horizontal", 10, 3, 12, 3),
    Sketcher.Constraint("Vertical", 8, 3, 10, 3),
    Sketcher.Constraint("Vertical", 9, 3, 12, 3),
    Sketcher.Constraint("Radius", 0, Q("0.1 in")),
    Sketcher.Constraint("Diameter", 8, Q("0.13 in")),
    Sketcher.Constraint("Diameter", 11, Q("0.36 in")),
    Sketcher.Constraint("DistanceX", 1, 1, 1, 2, Q("2.4 in")),
    Sketcher.Constraint("DistanceY", 7, 2, 7, 1, Q("1.3 in")),
    Sketcher.Constraint("DistanceX", 8, 3, 9, 3, Q("2.3 in")),
    Sketcher.Constraint("DistanceY", 8, 3, 10, 3, Q("1.2 in")),
    Sketcher.Constraint("DistanceX", 11, 3, 9, 3, Q("0.2 in")),
    Sketcher.Constraint("DistanceY", 9, 3, 11, 3, Q("0.7 in")),
    Sketcher.Constraint("DistanceX", -1, 1, 8, 3, Q("0.15 in")),
    Sketcher.Constraint("DistanceY", -1, 1, 8, 3, Q("0.15 in")),
    Sketcher.Constraint("DistanceY", 3, 1, 3, 2, 33.019958),
    Sketcher.Constraint("DistanceY", -1, 1, 2, 2, 2.540021),
])
pad7 = doc.addObject("PartDesign::Pad", "Pad006")
body7.addObject(pad7)
pad7.Profile = sketch7
pad7.Length = 1

doc.recompute()
